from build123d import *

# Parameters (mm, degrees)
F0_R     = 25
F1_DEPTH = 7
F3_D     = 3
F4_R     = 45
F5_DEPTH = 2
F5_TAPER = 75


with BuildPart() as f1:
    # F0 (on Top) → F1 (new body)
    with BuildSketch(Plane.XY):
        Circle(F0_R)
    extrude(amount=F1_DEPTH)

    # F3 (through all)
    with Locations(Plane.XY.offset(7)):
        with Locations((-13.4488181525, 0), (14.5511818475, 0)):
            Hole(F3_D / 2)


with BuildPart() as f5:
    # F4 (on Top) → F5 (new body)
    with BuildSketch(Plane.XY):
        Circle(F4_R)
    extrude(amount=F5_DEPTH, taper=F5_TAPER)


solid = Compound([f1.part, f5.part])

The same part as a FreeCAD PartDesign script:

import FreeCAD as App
import Part
import Sketcher
from FreeCAD import Vector
Q = App.Units.Quantity

doc = App.newDocument("Part")
body = doc.addObject("PartDesign::Body", "Body")

sketch1 = body.newObject("Sketcher::SketchObject", "Sketch")
sketch1.AttachmentSupport = (doc.getObject("XY_Plane"), [""])
sketch1.MapMode = "FlatFace"
sketch1.addGeometry(Part.Circle(Vector(0, 0, 0), Vector(0, 0, 1), 25), False)
sketch1.addConstraint(Sketcher.Constraint("Coincident", 0, 3, -1, 1))
sketch1.addConstraint(Sketcher.Constraint("Diameter", 0, Q("50 mm")))
pad1 = body.newObject("PartDesign::Pad", "Pad")
pad1.Profile = sketch1
pad1.Length = 7

sketch2 = body.newObject("Sketcher::SketchObject", "Sketch001")
sketch2.AttachmentSupport = (doc.getObject("XY_Plane"), [""])
sketch2.MapMode = "FlatFace"
sketch2.AttachmentOffset = App.Placement(Vector(0, 0, 7), App.Rotation())
sketch2.addGeometry(Part.Circle(Vector(-13.4, 0, 0), Vector(0, 0, 1), 1.5), False)
sketch2.addGeometry(Part.Circle(Vector(14.6, 0, 0), Vector(0, 0, 1), 1.5), False)
sketch2.addConstraint(Sketcher.Constraint("Equal", 0, 1))
sketch2.addConstraint(Sketcher.Constraint("PointOnObject", 0, 3, -1))
sketch2.addConstraint(Sketcher.Constraint("PointOnObject", 1, 3, -1))
sketch2.addConstraint(Sketcher.Constraint("Diameter", 0, Q("3 mm")))
sketch2.addConstraint(Sketcher.Constraint("DistanceX", 0, 3, 1, 3, Q("28 mm")))
sketch2.addConstraint(Sketcher.Constraint("DistanceX", 0, 3, -1, 1, Q("13.448818 mm")))
doc.recompute()
hole = body.newObject("PartDesign::Hole", "Hole")
hole.Profile = sketch2
hole.ThreadType = "None"
hole.Diameter = 3
hole.DepthType = "ThroughAll"
body2 = doc.addObject("PartDesign::Body", "Body001")

sketch3 = body2.newObject("Sketcher::SketchObject", "Sketch002")
sketch3.AttachmentSupport = (doc.getObject("XY_Plane001"), [""])
sketch3.MapMode = "FlatFace"
sketch3.addGeometry(Part.Circle(Vector(0, 0, 0), Vector(0, 0, 1), 45), False)
sketch3.addConstraint(Sketcher.Constraint("Coincident", 0, 3, -1, 1))
sketch3.addConstraint(Sketcher.Constraint("Diameter", 0, Q("90 mm")))
pad2 = body2.newObject("PartDesign::Pad", "Pad001")
pad2.Profile = sketch3
pad2.Length = 2
pad2.TaperAngle = -75

doc.recompute()
